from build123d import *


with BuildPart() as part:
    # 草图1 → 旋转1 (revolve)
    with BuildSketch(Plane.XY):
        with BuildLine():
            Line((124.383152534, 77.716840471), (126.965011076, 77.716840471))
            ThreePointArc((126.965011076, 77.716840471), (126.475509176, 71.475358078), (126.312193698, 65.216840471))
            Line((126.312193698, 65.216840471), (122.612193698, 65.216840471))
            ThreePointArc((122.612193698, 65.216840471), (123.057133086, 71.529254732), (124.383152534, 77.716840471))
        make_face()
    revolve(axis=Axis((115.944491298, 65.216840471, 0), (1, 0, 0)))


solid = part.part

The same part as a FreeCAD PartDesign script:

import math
import FreeCAD as App
import Part
import Sketcher
Q = App.Units.Quantity

doc = App.newDocument("Part")
body = doc.addObject("PartDesign::Body", "Body")

# Sketch on XY plane
sketch1 = doc.addObject("Sketcher::SketchObject", "Sketch")
body.addObject(sketch1)
sketch1.AttachmentSupport = (doc.XY_Plane, [""])
sketch1.MapMode = "FlatFace"
sketch1.addGeometry([
    Part.LineSegment(App.Vector(126.965011, 77.71684, 0), App.Vector(124.383153, 77.71684, 0)),
    Part.ArcOfCircle(Part.Circle(App.Vector(167.612194, 65.21684, 0), App.Vector(0, 0, 1), 45), math.radians(163.87238), math.radians(180)),
    Part.LineSegment(App.Vector(122.612194, 65.21684, 0), App.Vector(126.312194, 65.21684, 0)),
    Part.ArcOfCircle(Part.Circle(App.Vector(246.312194, 65.21684, 0), App.Vector(0, 0, 1), 120), math.radians(174.020843), math.radians(180)),
], False)
sketch1.addGeometry(Part.LineSegment(App.Vector(122.612194, 65.21684, 0), App.Vector(246.312194, 65.21684, 0)), True)  # axis
sketch1.addConstraint([
    Sketcher.Constraint("Coincident", 0, 2, 1, 1),
    Sketcher.Constraint("Coincident", 1, 2, 2, 1),
    Sketcher.Constraint("Coincident", 2, 2, 3, 2),
    Sketcher.Constraint("Coincident", 3, 1, 0, 1),
    Sketcher.Constraint("Horizontal", 0),
    Sketcher.Constraint("Horizontal", 2),
    Sketcher.Constraint("Horizontal", 4),
    Sketcher.Constraint("Coincident", 4, 1, 1, 2),
    Sketcher.Constraint("Coincident", 4, 2, 3, 3),
    Sketcher.Constraint("Horizontal", 1, 3, 3, 3),
    Sketcher.Constraint("Radius", 1, Q("45 mm")),
    Sketcher.Constraint("Radius", 3, Q("120 mm")),
    Sketcher.Constraint("DistanceX", 2, 1, 2, 2, Q("3.7 mm")),
    Sketcher.Constraint("DistanceY", 1, 3, 0, 2, Q("12.5 mm")),
    Sketcher.Constraint("DistanceY", -1, 1, 1, 3, Q("65.21684 mm")),
    Sketcher.Constraint("DistanceX", -1, 1, 3, 1, Q("126.965011 mm")),
])
revolution = doc.addObject("PartDesign::Revolution", "Revolution")
body.addObject(revolution)
revolution.Profile = sketch1
revolution.ReferenceAxis = (sketch1, ["Axis0"])
revolution.Angle = 360

doc.recompute()
